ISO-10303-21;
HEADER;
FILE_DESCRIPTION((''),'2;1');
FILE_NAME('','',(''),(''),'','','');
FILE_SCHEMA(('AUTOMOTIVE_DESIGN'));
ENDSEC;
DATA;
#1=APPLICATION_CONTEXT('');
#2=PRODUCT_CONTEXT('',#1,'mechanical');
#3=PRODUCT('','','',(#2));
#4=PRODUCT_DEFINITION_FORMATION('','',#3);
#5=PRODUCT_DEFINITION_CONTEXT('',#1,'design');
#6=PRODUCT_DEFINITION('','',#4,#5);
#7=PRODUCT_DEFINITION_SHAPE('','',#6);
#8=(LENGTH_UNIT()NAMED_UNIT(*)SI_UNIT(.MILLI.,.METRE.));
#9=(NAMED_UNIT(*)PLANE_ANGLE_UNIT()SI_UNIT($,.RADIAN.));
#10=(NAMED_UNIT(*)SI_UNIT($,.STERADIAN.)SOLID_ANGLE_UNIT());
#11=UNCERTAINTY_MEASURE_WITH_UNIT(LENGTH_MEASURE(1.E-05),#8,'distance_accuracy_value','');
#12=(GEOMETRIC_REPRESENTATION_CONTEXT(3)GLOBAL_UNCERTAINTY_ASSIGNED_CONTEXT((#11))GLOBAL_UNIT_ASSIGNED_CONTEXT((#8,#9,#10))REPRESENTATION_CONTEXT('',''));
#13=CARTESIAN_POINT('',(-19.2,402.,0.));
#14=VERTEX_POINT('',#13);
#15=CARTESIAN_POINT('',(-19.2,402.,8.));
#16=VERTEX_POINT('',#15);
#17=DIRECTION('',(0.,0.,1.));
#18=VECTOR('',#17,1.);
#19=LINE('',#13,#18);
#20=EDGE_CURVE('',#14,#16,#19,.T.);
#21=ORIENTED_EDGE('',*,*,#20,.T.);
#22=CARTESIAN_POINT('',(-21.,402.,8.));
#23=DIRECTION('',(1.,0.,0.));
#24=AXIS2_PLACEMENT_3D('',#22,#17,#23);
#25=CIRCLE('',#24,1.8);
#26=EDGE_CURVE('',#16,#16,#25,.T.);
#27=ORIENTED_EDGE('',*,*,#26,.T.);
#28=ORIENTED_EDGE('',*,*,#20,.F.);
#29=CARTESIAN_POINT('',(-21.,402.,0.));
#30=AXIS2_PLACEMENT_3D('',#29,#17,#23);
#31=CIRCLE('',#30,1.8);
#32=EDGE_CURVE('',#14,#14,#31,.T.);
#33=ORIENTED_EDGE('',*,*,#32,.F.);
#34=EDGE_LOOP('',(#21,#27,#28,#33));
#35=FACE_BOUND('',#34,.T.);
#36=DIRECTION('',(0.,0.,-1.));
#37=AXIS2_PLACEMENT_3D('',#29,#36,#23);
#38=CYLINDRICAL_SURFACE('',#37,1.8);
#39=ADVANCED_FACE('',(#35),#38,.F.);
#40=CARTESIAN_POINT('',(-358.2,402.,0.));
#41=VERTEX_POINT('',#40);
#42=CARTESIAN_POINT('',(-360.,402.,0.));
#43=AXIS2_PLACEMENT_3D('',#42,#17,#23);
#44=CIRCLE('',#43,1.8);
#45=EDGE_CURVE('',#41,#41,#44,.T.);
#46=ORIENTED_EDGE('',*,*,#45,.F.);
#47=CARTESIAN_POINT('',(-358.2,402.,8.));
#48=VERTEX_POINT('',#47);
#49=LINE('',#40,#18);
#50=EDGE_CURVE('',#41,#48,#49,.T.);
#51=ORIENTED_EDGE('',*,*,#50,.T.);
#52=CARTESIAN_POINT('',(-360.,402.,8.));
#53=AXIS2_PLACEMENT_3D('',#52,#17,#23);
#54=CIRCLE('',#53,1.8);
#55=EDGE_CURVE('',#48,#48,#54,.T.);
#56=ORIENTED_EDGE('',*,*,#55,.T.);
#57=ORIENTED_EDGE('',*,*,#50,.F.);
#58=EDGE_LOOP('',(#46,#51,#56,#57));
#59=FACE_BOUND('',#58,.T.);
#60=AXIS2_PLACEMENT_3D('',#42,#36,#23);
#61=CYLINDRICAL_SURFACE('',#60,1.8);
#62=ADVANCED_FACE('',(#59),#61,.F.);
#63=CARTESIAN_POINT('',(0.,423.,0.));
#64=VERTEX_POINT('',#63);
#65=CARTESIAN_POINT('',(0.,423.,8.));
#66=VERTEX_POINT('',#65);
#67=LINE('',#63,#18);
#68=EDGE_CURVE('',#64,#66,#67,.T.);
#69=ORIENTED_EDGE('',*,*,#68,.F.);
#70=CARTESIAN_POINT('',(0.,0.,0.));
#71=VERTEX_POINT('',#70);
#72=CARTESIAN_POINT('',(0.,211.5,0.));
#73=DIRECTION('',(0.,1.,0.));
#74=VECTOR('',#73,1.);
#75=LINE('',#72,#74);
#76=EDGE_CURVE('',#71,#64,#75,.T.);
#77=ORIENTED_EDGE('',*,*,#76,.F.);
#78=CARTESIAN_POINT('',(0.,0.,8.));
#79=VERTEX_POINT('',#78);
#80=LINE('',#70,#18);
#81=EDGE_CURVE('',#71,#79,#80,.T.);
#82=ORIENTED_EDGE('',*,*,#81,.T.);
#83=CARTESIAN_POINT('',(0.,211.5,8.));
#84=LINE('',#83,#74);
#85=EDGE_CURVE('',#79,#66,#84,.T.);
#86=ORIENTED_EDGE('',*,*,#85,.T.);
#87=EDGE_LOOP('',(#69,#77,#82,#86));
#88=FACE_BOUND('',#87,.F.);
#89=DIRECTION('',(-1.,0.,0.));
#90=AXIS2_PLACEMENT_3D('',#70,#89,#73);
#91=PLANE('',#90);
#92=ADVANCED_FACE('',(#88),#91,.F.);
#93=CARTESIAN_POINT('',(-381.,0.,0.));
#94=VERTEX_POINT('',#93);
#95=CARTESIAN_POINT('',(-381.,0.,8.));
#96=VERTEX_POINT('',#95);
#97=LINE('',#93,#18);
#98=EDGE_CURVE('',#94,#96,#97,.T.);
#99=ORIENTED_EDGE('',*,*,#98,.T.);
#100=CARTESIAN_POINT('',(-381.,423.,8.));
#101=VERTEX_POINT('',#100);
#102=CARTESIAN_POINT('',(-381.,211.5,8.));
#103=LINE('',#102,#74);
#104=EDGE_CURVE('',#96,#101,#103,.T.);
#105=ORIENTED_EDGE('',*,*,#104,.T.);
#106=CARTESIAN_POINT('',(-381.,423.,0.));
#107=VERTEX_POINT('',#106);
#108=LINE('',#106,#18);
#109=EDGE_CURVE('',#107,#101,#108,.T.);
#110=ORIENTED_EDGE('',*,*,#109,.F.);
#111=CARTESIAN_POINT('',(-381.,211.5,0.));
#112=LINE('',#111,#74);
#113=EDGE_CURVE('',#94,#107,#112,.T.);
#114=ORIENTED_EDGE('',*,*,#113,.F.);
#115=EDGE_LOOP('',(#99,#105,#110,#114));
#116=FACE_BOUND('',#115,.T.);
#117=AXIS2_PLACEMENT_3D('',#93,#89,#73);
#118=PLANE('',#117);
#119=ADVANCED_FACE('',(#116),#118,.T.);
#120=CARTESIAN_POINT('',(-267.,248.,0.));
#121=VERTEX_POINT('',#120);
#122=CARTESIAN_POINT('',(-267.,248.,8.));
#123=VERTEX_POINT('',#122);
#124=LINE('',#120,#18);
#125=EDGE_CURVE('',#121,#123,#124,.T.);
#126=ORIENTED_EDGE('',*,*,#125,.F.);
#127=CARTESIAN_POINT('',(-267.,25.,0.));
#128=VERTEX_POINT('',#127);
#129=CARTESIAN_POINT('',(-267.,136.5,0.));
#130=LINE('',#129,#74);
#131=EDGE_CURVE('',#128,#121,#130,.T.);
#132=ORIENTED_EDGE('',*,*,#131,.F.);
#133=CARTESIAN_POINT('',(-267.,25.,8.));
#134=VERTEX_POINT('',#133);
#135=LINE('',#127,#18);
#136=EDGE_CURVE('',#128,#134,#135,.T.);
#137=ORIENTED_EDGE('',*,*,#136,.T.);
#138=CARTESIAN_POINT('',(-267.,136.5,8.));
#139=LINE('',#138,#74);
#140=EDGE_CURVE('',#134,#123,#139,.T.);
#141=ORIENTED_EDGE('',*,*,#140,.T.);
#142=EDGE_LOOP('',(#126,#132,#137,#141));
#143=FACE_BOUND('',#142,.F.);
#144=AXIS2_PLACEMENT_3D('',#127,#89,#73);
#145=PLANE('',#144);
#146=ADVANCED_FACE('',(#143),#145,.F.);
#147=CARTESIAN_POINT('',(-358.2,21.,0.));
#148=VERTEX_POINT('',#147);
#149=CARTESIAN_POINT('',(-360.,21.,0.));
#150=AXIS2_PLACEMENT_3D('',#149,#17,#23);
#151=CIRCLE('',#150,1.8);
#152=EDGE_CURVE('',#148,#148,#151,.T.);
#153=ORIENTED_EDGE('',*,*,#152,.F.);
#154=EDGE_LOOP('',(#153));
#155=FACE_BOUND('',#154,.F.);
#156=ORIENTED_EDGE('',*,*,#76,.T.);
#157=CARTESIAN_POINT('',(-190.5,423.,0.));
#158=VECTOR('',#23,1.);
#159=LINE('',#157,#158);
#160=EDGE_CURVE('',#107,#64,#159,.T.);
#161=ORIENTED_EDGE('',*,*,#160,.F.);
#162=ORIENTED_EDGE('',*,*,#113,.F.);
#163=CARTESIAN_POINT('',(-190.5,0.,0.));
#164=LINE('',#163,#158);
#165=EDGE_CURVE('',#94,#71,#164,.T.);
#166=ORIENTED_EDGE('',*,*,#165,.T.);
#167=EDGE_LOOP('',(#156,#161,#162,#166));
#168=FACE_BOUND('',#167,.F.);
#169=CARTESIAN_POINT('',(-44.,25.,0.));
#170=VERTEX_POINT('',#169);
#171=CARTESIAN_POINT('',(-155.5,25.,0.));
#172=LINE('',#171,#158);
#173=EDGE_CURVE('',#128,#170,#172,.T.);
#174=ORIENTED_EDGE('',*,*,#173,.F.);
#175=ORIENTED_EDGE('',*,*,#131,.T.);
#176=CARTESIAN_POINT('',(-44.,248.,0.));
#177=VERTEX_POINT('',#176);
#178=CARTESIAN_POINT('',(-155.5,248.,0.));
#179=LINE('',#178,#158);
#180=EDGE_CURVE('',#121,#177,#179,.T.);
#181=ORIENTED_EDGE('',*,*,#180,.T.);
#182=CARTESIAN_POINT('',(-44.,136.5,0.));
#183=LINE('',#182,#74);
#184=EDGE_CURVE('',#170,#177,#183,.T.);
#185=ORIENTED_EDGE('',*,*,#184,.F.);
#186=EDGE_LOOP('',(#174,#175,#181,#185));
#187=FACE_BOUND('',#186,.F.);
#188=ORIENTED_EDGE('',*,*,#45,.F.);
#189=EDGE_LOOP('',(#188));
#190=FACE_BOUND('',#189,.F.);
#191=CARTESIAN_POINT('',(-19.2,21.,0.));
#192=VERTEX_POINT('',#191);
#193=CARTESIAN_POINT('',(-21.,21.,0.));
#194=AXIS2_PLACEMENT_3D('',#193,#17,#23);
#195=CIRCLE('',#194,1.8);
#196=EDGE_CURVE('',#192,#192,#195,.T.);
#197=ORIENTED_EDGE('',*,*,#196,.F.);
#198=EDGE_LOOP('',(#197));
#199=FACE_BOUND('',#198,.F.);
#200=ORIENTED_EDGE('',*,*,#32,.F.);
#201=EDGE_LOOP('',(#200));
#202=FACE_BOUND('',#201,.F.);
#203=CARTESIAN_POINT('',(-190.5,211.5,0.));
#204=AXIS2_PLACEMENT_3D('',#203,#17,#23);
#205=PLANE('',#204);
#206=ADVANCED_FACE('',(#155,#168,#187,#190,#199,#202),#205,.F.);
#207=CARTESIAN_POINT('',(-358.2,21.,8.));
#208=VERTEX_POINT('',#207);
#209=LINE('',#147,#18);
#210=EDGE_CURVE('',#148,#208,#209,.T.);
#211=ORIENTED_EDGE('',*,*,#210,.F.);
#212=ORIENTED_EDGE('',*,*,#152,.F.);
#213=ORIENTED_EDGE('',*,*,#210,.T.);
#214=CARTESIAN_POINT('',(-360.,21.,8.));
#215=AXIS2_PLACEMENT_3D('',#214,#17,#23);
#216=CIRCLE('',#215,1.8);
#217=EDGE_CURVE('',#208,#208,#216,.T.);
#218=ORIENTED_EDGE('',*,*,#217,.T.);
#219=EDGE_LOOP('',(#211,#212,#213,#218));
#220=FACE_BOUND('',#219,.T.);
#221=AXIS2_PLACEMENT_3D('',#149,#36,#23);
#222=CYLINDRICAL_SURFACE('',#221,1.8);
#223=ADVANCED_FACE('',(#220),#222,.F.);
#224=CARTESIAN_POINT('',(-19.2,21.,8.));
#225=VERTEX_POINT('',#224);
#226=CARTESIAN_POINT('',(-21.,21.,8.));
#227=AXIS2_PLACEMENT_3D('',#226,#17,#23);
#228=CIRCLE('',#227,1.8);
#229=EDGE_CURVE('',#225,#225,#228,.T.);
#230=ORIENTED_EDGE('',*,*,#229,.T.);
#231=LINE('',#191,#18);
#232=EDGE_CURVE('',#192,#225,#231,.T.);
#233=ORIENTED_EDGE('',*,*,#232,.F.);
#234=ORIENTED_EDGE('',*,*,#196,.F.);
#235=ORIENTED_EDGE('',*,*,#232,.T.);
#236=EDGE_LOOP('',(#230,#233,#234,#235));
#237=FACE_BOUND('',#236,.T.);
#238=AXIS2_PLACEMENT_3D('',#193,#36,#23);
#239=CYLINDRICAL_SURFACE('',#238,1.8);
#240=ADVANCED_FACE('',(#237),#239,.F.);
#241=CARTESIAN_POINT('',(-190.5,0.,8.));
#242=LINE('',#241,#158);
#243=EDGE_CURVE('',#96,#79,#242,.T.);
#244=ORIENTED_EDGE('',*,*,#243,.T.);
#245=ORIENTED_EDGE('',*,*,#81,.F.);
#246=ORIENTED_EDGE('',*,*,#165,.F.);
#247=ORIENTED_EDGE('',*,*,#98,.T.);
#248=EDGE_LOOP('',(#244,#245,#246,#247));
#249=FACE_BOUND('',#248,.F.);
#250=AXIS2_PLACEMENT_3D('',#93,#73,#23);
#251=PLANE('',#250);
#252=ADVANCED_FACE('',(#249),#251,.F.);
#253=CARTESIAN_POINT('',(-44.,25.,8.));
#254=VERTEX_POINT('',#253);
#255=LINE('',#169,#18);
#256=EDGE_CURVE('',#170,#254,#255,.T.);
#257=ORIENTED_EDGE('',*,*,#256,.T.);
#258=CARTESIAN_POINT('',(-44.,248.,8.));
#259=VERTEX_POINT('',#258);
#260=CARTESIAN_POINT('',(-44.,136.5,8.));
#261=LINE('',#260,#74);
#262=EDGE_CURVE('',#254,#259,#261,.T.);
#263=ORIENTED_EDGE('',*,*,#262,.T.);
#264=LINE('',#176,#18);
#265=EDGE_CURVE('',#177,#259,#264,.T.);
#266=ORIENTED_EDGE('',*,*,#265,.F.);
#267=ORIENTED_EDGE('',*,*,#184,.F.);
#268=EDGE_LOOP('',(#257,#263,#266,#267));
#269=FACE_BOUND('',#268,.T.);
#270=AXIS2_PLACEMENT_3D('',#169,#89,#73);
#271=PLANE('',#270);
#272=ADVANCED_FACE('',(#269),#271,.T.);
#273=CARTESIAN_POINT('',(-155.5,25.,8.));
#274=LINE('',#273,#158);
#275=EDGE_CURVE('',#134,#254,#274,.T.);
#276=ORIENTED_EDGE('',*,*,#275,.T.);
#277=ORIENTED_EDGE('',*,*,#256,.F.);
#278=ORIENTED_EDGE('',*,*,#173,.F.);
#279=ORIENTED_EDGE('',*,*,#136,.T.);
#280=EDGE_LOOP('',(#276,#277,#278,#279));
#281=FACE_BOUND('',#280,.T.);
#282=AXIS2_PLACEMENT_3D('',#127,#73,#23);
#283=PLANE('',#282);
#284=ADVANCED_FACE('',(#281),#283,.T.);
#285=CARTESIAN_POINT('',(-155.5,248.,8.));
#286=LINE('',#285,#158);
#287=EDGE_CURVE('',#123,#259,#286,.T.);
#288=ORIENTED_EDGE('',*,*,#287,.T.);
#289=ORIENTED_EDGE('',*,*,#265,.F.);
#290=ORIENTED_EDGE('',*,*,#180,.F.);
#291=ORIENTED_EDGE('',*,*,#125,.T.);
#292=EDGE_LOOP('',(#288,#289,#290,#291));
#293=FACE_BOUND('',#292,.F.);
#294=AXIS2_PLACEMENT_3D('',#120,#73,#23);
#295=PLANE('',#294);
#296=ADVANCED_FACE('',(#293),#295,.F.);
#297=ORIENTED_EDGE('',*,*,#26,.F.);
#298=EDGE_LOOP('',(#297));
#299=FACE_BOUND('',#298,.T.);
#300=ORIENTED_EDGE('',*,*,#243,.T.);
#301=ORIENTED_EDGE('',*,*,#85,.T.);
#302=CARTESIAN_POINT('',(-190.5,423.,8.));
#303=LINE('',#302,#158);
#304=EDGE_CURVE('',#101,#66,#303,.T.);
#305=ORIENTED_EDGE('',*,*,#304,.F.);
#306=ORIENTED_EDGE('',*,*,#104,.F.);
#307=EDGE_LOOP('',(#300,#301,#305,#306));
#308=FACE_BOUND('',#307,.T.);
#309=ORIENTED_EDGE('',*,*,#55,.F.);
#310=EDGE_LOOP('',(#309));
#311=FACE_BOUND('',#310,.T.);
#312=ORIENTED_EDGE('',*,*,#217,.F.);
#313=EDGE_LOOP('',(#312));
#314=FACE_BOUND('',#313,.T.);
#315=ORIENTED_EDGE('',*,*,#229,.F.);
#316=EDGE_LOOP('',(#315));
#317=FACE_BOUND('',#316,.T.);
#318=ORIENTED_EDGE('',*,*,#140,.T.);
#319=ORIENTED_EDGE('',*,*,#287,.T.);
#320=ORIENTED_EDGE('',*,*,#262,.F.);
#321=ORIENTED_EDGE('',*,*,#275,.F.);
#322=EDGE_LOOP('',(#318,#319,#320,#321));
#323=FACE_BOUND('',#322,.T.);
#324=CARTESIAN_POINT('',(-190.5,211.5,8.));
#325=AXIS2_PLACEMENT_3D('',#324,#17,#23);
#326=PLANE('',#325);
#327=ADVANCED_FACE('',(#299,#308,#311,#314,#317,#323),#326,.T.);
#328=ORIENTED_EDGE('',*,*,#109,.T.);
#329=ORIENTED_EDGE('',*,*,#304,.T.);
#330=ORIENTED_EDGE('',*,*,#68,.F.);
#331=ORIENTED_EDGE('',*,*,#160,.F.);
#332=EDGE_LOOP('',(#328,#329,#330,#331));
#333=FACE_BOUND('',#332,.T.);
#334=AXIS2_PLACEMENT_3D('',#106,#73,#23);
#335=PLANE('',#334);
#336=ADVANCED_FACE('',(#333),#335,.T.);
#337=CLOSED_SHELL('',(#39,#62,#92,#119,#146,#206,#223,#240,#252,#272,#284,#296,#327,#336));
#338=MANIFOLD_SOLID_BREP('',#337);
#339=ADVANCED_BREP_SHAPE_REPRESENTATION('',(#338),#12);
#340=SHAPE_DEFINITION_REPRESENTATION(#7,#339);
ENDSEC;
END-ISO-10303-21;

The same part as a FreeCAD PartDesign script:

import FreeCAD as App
import Part
import Sketcher
Q = App.Units.Quantity

doc = App.newDocument("Part")
body = doc.addObject("PartDesign::Body", "Body")

# Sketch on XY plane
sketch1 = body.newObject("Sketcher::SketchObject", "Sketch")
sketch1.AttachmentSupport = (doc.getObject("XY_Plane"), [""])
sketch1.MapMode = "FlatFace"
sketch1.addGeometry(Part.LineSegment(App.Vector(-381, 423, 0), App.Vector(-381, 0, 0)), False)
sketch1.addGeometry(Part.LineSegment(App.Vector(-381, 0, 0), App.Vector(0, 0, 0)), False)
sketch1.addGeometry(Part.LineSegment(App.Vector(0, 0, 0), App.Vector(0, 423, 0)), False)
sketch1.addGeometry(Part.LineSegment(App.Vector(0, 423, 0), App.Vector(-381, 423, 0)), False)
sketch1.addGeometry(Part.Circle(App.Vector(-360, 21, 0), App.Vector(0, 0, 1), 1.8), False)
sketch1.addGeometry(Part.Circle(App.Vector(-21, 21, 0), App.Vector(0, 0, 1), 1.8), False)
sketch1.addGeometry(Part.LineSegment(App.Vector(-44, 25, 0), App.Vector(-267, 25, 0)), False)
sketch1.addGeometry(Part.LineSegment(App.Vector(-267, 25, 0), App.Vector(-267, 248, 0)), False)
sketch1.addGeometry(Part.LineSegment(App.Vector(-267, 248, 0), App.Vector(-44, 248, 0)), False)
sketch1.addGeometry(Part.LineSegment(App.Vector(-44, 248, 0), App.Vector(-44, 25, 0)), False)
sketch1.addGeometry(Part.Circle(App.Vector(-360, 402, 0), App.Vector(0, 0, 1), 1.8), False)
sketch1.addGeometry(Part.Circle(App.Vector(-21, 402, 0), App.Vector(0, 0, 1), 1.8), False)
sketch1.addConstraint(Sketcher.Constraint("Coincident", 0, 2, 1, 1))
sketch1.addConstraint(Sketcher.Constraint("Coincident", 1, 2, 2, 1))
sketch1.addConstraint(Sketcher.Constraint("Coincident", 2, 2, 3, 1))
sketch1.addConstraint(Sketcher.Constraint("Coincident", 3, 2, 0, 1))
sketch1.addConstraint(Sketcher.Constraint("Coincident", 6, 2, 7, 1))
sketch1.addConstraint(Sketcher.Constraint("Coincident", 7, 2, 8, 1))
sketch1.addConstraint(Sketcher.Constraint("Coincident", 8, 2, 9, 1))
sketch1.addConstraint(Sketcher.Constraint("Coincident", 9, 2, 6, 1))
sketch1.addConstraint(Sketcher.Constraint("Vertical", 0))
sketch1.addConstraint(Sketcher.Constraint("Horizontal", 1))
sketch1.addConstraint(Sketcher.Constraint("Vertical", 2))
sketch1.addConstraint(Sketcher.Constraint("Horizontal", 3))
sketch1.addConstraint(Sketcher.Constraint("Horizontal", 6))
sketch1.addConstraint(Sketcher.Constraint("Vertical", 7))
sketch1.addConstraint(Sketcher.Constraint("Horizontal", 8))
sketch1.addConstraint(Sketcher.Constraint("Vertical", 9))
sketch1.addConstraint(Sketcher.Constraint("Coincident", 1, 2, -1, 1))
sketch1.addConstraint(Sketcher.Constraint("Equal", 4, 5))
sketch1.addConstraint(Sketcher.Constraint("Equal", 5, 10))
sketch1.addConstraint(Sketcher.Constraint("Equal", 10, 11))
sketch1.addConstraint(Sketcher.Constraint("Horizontal", 4, 3, 5, 3))
sketch1.addConstraint(Sketcher.Constraint("Horizontal", 10, 3, 11, 3))
sketch1.addConstraint(Sketcher.Constraint("Vertical", 4, 3, 10, 3))
sketch1.addConstraint(Sketcher.Constraint("Vertical", 5, 3, 11, 3))
sketch1.addConstraint(Sketcher.Constraint("Equal", 8, 7))
sketch1.addConstraint(Sketcher.Constraint("Diameter", 4, Q("3.6 mm")))
sketch1.addConstraint(Sketcher.Constraint("DistanceX", 1, 1, 1, 2, Q("381 mm")))
sketch1.addConstraint(Sketcher.Constraint("DistanceX", 6, 2, 6, 1, Q("223 mm")))
sketch1.addConstraint(Sketcher.Constraint("DistanceY", 0, 2, 0, 1, Q("423 mm")))
sketch1.addConstraint(Sketcher.Constraint("DistanceX", 4, 3, -1, 1, Q("360 mm")))
sketch1.addConstraint(Sketcher.Constraint("DistanceY", -1, 1, 4, 3, Q("21 mm")))
sketch1.addConstraint(Sketcher.Constraint("DistanceX", 5, 3, -1, 1, Q("21 mm")))
sketch1.addConstraint(Sketcher.Constraint("DistanceY", -1, 1, 10, 3, Q("402 mm")))
sketch1.addConstraint(Sketcher.Constraint("DistanceX", 6, 2, -1, 1, Q("267 mm")))
sketch1.addConstraint(Sketcher.Constraint("DistanceY", -1, 1, 6, 2, Q("25 mm")))
pad1 = body.newObject("PartDesign::Pad", "Pad")
pad1.Profile = sketch1
pad1.Length = 8

doc.recompute()
